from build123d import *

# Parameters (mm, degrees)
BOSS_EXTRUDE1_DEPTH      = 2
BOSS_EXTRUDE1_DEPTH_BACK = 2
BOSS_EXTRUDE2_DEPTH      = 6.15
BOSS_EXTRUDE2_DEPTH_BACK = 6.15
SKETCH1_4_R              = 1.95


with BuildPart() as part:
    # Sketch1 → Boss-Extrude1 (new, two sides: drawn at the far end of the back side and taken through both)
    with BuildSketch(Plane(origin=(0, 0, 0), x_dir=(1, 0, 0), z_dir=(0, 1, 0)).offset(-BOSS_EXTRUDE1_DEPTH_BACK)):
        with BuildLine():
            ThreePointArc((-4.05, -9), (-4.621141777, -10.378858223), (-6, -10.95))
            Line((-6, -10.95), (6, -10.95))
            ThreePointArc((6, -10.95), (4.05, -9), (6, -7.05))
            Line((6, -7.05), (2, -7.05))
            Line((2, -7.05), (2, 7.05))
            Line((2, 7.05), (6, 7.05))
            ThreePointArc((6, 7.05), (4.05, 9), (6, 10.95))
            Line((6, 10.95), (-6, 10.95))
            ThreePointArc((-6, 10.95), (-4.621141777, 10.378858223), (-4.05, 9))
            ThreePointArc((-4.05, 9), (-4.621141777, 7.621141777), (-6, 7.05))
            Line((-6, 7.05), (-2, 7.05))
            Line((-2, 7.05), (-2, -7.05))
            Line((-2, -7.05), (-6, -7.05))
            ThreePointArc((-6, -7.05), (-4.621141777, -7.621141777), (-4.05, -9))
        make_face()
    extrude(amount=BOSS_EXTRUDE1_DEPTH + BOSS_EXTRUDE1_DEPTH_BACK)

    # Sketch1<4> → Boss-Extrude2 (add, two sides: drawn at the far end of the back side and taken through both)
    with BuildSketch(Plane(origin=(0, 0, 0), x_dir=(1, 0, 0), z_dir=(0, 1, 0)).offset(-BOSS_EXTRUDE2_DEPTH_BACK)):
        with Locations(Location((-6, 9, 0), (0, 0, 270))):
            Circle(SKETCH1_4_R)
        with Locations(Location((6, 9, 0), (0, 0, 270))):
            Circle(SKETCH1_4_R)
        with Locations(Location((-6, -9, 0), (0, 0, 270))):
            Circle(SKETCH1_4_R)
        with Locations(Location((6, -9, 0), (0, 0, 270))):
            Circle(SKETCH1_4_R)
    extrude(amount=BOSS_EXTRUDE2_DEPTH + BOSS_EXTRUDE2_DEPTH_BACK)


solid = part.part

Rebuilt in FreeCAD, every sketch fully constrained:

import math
import FreeCAD as App
import Part
import Sketcher

V = App.Vector

doc = App.newDocument("Part")
body = doc.addObject("PartDesign::Body", "Body")

# Sketch on XZ plane
sketch1 = body.newObject("Sketcher::SketchObject", "Sketch")
sketch1.AttachmentSupport = (doc.getObject("XZ_Plane"), [""])
sketch1.MapMode = "FlatFace"
sketch1.addGeometry(Part.ArcOfCircle(Part.Circle(V(-6, 9, 0), V(0, 0, 1), 2), math.radians(0), math.radians(90)), False)
sketch1.addGeometry(Part.LineSegment(V(-6, 10.9, 0), V(6, 10.9, 0)), False)
sketch1.addGeometry(Part.ArcOfCircle(Part.Circle(V(6, 9, 0), V(0, 0, 1), 1.9), math.radians(90), math.radians(270)), False)
sketch1.addGeometry(Part.LineSegment(V(6, 7, 0), V(2, 7, 0)), False)
sketch1.addGeometry(Part.LineSegment(V(2, 7, 0), V(2, -7, 0)), False)
sketch1.addGeometry(Part.LineSegment(V(2, -7, 0), V(6, -7, 0)), False)
sketch1.addGeometry(Part.ArcOfCircle(Part.Circle(V(6, -9, 0), V(0, 0, 1), 1.9), math.radians(90), math.radians(270)), False)
sketch1.addGeometry(Part.LineSegment(V(6, -10.9, 0), V(-6, -10.9, 0)), False)
sketch1.addGeometry(Part.ArcOfCircle(Part.Circle(V(-6, -9, 0), V(0, 0, 1), 2), math.radians(-90), math.radians(0)), False)
sketch1.addGeometry(Part.ArcOfCircle(Part.Circle(V(-6, -9, 0), V(0, 0, 1), 2), math.radians(0), math.radians(90)), False)
sketch1.addGeometry(Part.LineSegment(V(-6, -7, 0), V(-2, -7, 0)), False)
sketch1.addGeometry(Part.LineSegment(V(-2, -7, 0), V(-2, 7, 0)), False)
sketch1.addGeometry(Part.LineSegment(V(-2, 7, 0), V(-6, 7, 0)), False)
sketch1.addGeometry(Part.ArcOfCircle(Part.Circle(V(-6, 9, 0), V(0, 0, 1), 2), math.radians(-90), math.radians(0)), False)
sketch1.addConstraint(Sketcher.Constraint("Tangent", 0, 2, 1, 1))
sketch1.addConstraint(Sketcher.Constraint("Tangent", 1, 2, 2, 1))
sketch1.addConstraint(Sketcher.Constraint("Tangent", 2, 2, 3, 1))
sketch1.addConstraint(Sketcher.Constraint("Coincident", 3, 2, 4, 1))
sketch1.addConstraint(Sketcher.Constraint("Coincident", 4, 2, 5, 1))
sketch1.addConstraint(Sketcher.Constraint("Tangent", 5, 2, 6, 1))
sketch1.addConstraint(Sketcher.Constraint("Tangent", 6, 2, 7, 1))
sketch1.addConstraint(Sketcher.Constraint("Tangent", 7, 2, 8, 1))
sketch1.addConstraint(Sketcher.Constraint("Tangent", 8, 2, 9, 1))
sketch1.addConstraint(Sketcher.Constraint("Tangent", 9, 2, 10, 1))
sketch1.addConstraint(Sketcher.Constraint("Coincident", 10, 2, 11, 1))
sketch1.addConstraint(Sketcher.Constraint("Coincident", 11, 2, 12, 1))
sketch1.addConstraint(Sketcher.Constraint("Tangent", 12, 2, 13, 1))
sketch1.addConstraint(Sketcher.Constraint("Tangent", 13, 2, 0, 1))
sketch1.addConstraint(Sketcher.Constraint("Horizontal", 1))
sketch1.addConstraint(Sketcher.Constraint("Horizontal", 3))
sketch1.addConstraint(Sketcher.Constraint("Vertical", 4))
sketch1.addConstraint(Sketcher.Constraint("Horizontal", 5))
sketch1.addConstraint(Sketcher.Constraint("Horizontal", 7))
sketch1.addConstraint(Sketcher.Constraint("Horizontal", 10))
sketch1.addConstraint(Sketcher.Constraint("Vertical", 11))
sketch1.addConstraint(Sketcher.Constraint("Horizontal", 12))
sketch1.addConstraint(Sketcher.Constraint("Equal", 0, 2))
sketch1.addConstraint(Sketcher.Constraint("Equal", 2, 6))
sketch1.addConstraint(Sketcher.Constraint("Equal", 6, 8))
sketch1.addConstraint(Sketcher.Constraint("Equal", 8, 9))
sketch1.addConstraint(Sketcher.Constraint("Equal", 9, 13))
sketch1.addConstraint(Sketcher.Constraint("Symmetric", 0, 3, 6, 3, -1, 1))
sketch1.addConstraint(Sketcher.Constraint("Symmetric", 8, 2, 13, 2, -1))
sketch1.addConstraint(Sketcher.Constraint("Horizontal", 9, 3, 8, 2))
sketch1.addConstraint(Sketcher.Constraint("Vertical", 2, 3, 6, 3))
sketch1.addConstraint(Sketcher.Constraint("Equal", 5, 10))
sketch1.addConstraint(Sketcher.Constraint("DistanceX", 1, 1, 1, 2, 12.0))
sketch1.addConstraint(Sketcher.Constraint("DistanceX", 3, 2, 3, 1, 4.0))
sketch1.addConstraint(Sketcher.Constraint("Radius", 0, 1.95))
sketch1.addConstraint(Sketcher.Constraint("DistanceY", 4, 2, 4, 1, 14.1))
pad1 = body.newObject("PartDesign::Pad", "Pad")
pad1.Profile = sketch1
pad1.Type = "TwoLengths"
pad1.Length = 2
pad1.Length2 = 2
pad1.Reversed = True

# Sketch on XZ plane
sketch2 = body.newObject("Sketcher::SketchObject", "Sketch001")
sketch2.AttachmentSupport = (doc.getObject("XZ_Plane"), [""])
sketch2.MapMode = "FlatFace"
sketch2.addGeometry(Part.Circle(V(-6, -9, 0), V(0, 0, 1), 1.9), False)
sketch2.addGeometry(Part.Circle(V(6, -9, 0), V(0, 0, 1), 1.9), False)
sketch2.addGeometry(Part.Circle(V(-6, 9, 0), V(0, 0, 1), 1.9), False)
sketch2.addGeometry(Part.Circle(V(6, 9, 0), V(0, 0, 1), 1.9), False)
sketch2.addConstraint(Sketcher.Constraint("Equal", 0, 1))
sketch2.addConstraint(Sketcher.Constraint("Equal", 1, 2))
sketch2.addConstraint(Sketcher.Constraint("Equal", 2, 3))
sketch2.addConstraint(Sketcher.Constraint("Symmetric", 1, 3, 2, 3, -1, 1))
sketch2.addConstraint(Sketcher.Constraint("Symmetric", 0, 3, 3, 3, -1, 1))
sketch2.addConstraint(Sketcher.Constraint("Symmetric", 0, 3, 1, 3, -2))
sketch2.addConstraint(Sketcher.Constraint("Diameter", 0, 3.9))
sketch2.addConstraint(Sketcher.Constraint("DistanceX", 0, 3, -1, 1, 6.0))
sketch2.addConstraint(Sketcher.Constraint("DistanceY", 0, 3, -1, 1, 9.0))
pad2 = body.newObject("PartDesign::Pad", "Pad001")
pad2.Profile = sketch2
pad2.Type = "TwoLengths"
pad2.Length = 6.15
pad2.Length2 = 6.15
pad2.Reversed = True

doc.recompute()
